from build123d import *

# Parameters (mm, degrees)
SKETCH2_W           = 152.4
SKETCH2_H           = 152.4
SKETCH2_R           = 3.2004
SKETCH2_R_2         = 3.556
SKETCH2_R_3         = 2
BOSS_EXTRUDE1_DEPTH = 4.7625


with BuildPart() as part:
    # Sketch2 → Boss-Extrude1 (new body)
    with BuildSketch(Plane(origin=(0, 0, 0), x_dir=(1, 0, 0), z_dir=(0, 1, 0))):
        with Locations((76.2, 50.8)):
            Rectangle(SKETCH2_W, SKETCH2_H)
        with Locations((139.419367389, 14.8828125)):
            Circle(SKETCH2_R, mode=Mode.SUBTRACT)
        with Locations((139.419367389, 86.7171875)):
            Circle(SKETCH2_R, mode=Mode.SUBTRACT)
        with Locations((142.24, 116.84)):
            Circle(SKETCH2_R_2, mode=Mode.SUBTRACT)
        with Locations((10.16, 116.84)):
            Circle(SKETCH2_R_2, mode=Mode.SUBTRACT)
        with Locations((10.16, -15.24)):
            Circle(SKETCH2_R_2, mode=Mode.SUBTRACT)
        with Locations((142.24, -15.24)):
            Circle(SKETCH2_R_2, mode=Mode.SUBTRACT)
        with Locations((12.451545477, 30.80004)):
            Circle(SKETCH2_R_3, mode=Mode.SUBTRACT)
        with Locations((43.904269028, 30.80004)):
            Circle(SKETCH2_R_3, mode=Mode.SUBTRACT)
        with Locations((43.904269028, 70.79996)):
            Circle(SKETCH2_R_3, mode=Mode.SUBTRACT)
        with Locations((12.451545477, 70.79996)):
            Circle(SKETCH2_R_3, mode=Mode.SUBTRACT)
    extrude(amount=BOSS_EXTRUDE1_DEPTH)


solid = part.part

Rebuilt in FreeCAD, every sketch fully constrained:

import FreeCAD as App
import Part
import Sketcher
Q = App.Units.Quantity

doc = App.newDocument("Part")
body = doc.addObject("PartDesign::Body", "Body")

sketch1 = body.newObject("Sketcher::SketchObject", "Sketch")
sketch1.AttachmentSupport = (doc.getObject("XZ_Plane"), [""])
sketch1.MapMode = "FlatFace"
sketch1.addGeometry([
    Part.LineSegment(App.Vector(0, -127, 0), App.Vector(0, 25.4, 0)),
    Part.LineSegment(App.Vector(0, 25.4, 0), App.Vector(152.4, 25.4, 0)),
    Part.LineSegment(App.Vector(152.4, 25.4, 0), App.Vector(152.4, -127, 0)),
    Part.LineSegment(App.Vector(152.4, -127, 0), App.Vector(0, -127, 0)),
    Part.Circle(App.Vector(10.2, 15.2, 0), App.Vector(0, 0, 1), 3.6),
    Part.Circle(App.Vector(12.5, -30.8, 0), App.Vector(0, 0, 1), 2),
    Part.Circle(App.Vector(43.9, -30.8, 0), App.Vector(0, 0, 1), 2),
    Part.Circle(App.Vector(142.2, 15.2, 0), App.Vector(0, 0, 1), 3.6),
    Part.Circle(App.Vector(139.4, -14.9, 0), App.Vector(0, 0, 1), 3.2),
    Part.Circle(App.Vector(12.5, -70.8, 0), App.Vector(0, 0, 1), 2),
    Part.Circle(App.Vector(43.9, -70.8, 0), App.Vector(0, 0, 1), 2),
    Part.Circle(App.Vector(10.2, -116.8, 0), App.Vector(0, 0, 1), 3.6),
    Part.Circle(App.Vector(139.4, -86.7, 0), App.Vector(0, 0, 1), 3.2),
    Part.Circle(App.Vector(142.2, -116.8, 0), App.Vector(0, 0, 1), 3.6),
], False)
sketch1.addConstraint([
    Sketcher.Constraint("Coincident", 0, 2, 1, 1),
    Sketcher.Constraint("Coincident", 1, 2, 2, 1),
    Sketcher.Constraint("Coincident", 2, 2, 3, 1),
    Sketcher.Constraint("Coincident", 3, 2, 0, 1),
    Sketcher.Constraint("Vertical", 0),
    Sketcher.Constraint("Horizontal", 1),
    Sketcher.Constraint("Vertical", 2),
    Sketcher.Constraint("Horizontal", 3),
    Sketcher.Constraint("Equal", 5, 6),
    Sketcher.Constraint("Equal", 4, 7),
    Sketcher.Constraint("Equal", 6, 9),
    Sketcher.Constraint("Equal", 9, 10),
    Sketcher.Constraint("Equal", 7, 11),
    Sketcher.Constraint("Equal", 8, 12),
    Sketcher.Constraint("Equal", 11, 13),
    Sketcher.Constraint("PointOnObject", 0, 2, -2),
    Sketcher.Constraint("Horizontal", 5, 3, 6, 3),
    Sketcher.Constraint("Horizontal", 4, 3, 7, 3),
    Sketcher.Constraint("Horizontal", 9, 3, 10, 3),
    Sketcher.Constraint("Horizontal", 11, 3, 13, 3),
    Sketcher.Constraint("Vertical", 5, 3, 9, 3),
    Sketcher.Constraint("Vertical", 6, 3, 10, 3),
    Sketcher.Constraint("Vertical", 4, 3, 11, 3),
    Sketcher.Constraint("Vertical", 8, 3, 12, 3),
    Sketcher.Constraint("Vertical", 7, 3, 13, 3),
    Sketcher.Constraint("Equal", 3, 0),
    Sketcher.Constraint("Diameter", 4, Q("0.28 in")),
    Sketcher.Constraint("DistanceX", 1, 1, 1, 2, Q("6 in")),
    Sketcher.Constraint("Diameter", 8, Q("0.252 in")),
    Sketcher.Constraint("DistanceY", -1, 1, 0, 2, Q("1 in")),
    Sketcher.Constraint("DistanceX", -1, 1, 4, 3, Q("0.4 in")),
    Sketcher.Constraint("DistanceY", -1, 1, 4, 3, Q("0.6 in")),
    Sketcher.Constraint("DistanceX", -1, 1, 7, 3, Q("5.6 in")),
    Sketcher.Constraint("DistanceY", 11, 3, -1, 1, Q("4.6 in")),
    Sketcher.Constraint("Diameter", 5, Q("4 mm")),
    Sketcher.Constraint("DistanceY", 12, 3, 8, 3, Q("2.828125 in")),
    Sketcher.Constraint("DistanceY", 5, 3, -1, 1, Q("1.2126 in")),
    Sketcher.Constraint("DistanceY", 9, 3, -1, 1, Q("2.7874 in")),
    Sketcher.Constraint("DistanceX", 6, 3, 8, 3, Q("95.515098 mm")),
    Sketcher.Constraint("DistanceX", -1, 1, 6, 3, Q("43.904269 mm")),
    Sketcher.Constraint("DistanceX", 5, 3, 8, 3, Q("126.967822 mm")),
    Sketcher.Constraint("DistanceY", 8, 3, -1, 1, Q("14.882812 mm")),
])
pad1 = body.newObject("PartDesign::Pad", "Pad")
pad1.Profile = sketch1
pad1.Length = Q("0.1875 in")
pad1.Reversed = True

doc.recompute()
